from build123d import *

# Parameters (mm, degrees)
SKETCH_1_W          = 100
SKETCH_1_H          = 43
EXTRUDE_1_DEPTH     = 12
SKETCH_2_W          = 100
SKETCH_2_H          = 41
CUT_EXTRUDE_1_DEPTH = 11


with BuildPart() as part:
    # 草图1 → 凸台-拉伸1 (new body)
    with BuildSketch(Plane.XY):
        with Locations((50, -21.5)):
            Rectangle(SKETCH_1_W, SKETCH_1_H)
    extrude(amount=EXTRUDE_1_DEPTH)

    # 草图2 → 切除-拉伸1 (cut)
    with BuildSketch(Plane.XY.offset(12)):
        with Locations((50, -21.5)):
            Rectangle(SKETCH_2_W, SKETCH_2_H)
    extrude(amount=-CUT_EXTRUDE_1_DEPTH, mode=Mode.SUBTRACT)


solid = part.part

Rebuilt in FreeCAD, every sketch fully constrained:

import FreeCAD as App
import Part
import Sketcher

V = App.Vector
Q = App.Units.Quantity

doc = App.newDocument("Part")
body = doc.addObject("PartDesign::Body", "Body")

sketch1 = doc.addObject("Sketcher::SketchObject", "Sketch")
body.addObject(sketch1)
sketch1.AttachmentSupport = (doc.XY_Plane, [""])
sketch1.MapMode = "FlatFace"
sketch1.addGeometry([
    Part.LineSegment(V(0, 0, 0), V(0, -43, 0)),
    Part.LineSegment(V(0, -43, 0), V(100, -43, 0)),
    Part.LineSegment(V(100, -43, 0), V(100, 0, 0)),
    Part.LineSegment(V(100, 0, 0), V(0, 0, 0)),
], False)
sketch1.addConstraint([
    Sketcher.Constraint("Coincident", 0, 2, 1, 1),
    Sketcher.Constraint("Coincident", 1, 2, 2, 1),
    Sketcher.Constraint("Coincident", 2, 2, 3, 1),
    Sketcher.Constraint("Coincident", 3, 2, 0, 1),
    Sketcher.Constraint("Vertical", 0),
    Sketcher.Constraint("Horizontal", 1),
    Sketcher.Constraint("Vertical", 2),
    Sketcher.Constraint("Horizontal", 3),
    Sketcher.Constraint("Coincident", 3, 2, -1, 1),
    Sketcher.Constraint("DistanceX", 1, 1, 1, 2, Q("100 mm")),
    Sketcher.Constraint("DistanceY", 0, 2, 0, 1, Q("43 mm")),
])
pad1 = doc.addObject("PartDesign::Pad", "Pad")
body.addObject(pad1)
pad1.Profile = sketch1
pad1.Length = 12

sketch2 = doc.addObject("Sketcher::SketchObject", "Sketch001")
body.addObject(sketch2)
sketch2.AttachmentSupport = (doc.XY_Plane, [""])
sketch2.MapMode = "FlatFace"
sketch2.AttachmentOffset = App.Placement(V(0, 0, 12), App.Rotation())
sketch2.addGeometry([
    Part.LineSegment(V(0, -1, 0), V(0, -42, 0)),
    Part.LineSegment(V(0, -42, 0), V(100, -42, 0)),
    Part.LineSegment(V(100, -42, 0), V(100, -1, 0)),
    Part.LineSegment(V(100, -1, 0), V(0, -1, 0)),
], False)
sketch2.addConstraint([
    Sketcher.Constraint("Coincident", 0, 2, 1, 1),
    Sketcher.Constraint("Coincident", 1, 2, 2, 1),
    Sketcher.Constraint("Coincident", 2, 2, 3, 1),
    Sketcher.Constraint("Coincident", 3, 2, 0, 1),
    Sketcher.Constraint("Vertical", 0),
    Sketcher.Constraint("Horizontal", 1),
    Sketcher.Constraint("Vertical", 2),
    Sketcher.Constraint("Horizontal", 3),
    Sketcher.Constraint("PointOnObject", 0, 2, -2),
    Sketcher.Constraint("DistanceX", 1, 1, 1, 2, Q("100 mm")),
    Sketcher.Constraint("DistanceY", 0, 2, 0, 1, Q("41 mm")),
    Sketcher.Constraint("DistanceY", 0, 2, -1, 1, Q("42 mm")),
])
pocket1 = doc.addObject("PartDesign::Pocket", "Pocket")
body.addObject(pocket1)
pocket1.Profile = sketch2
pocket1.Length = 11

doc.recompute()
